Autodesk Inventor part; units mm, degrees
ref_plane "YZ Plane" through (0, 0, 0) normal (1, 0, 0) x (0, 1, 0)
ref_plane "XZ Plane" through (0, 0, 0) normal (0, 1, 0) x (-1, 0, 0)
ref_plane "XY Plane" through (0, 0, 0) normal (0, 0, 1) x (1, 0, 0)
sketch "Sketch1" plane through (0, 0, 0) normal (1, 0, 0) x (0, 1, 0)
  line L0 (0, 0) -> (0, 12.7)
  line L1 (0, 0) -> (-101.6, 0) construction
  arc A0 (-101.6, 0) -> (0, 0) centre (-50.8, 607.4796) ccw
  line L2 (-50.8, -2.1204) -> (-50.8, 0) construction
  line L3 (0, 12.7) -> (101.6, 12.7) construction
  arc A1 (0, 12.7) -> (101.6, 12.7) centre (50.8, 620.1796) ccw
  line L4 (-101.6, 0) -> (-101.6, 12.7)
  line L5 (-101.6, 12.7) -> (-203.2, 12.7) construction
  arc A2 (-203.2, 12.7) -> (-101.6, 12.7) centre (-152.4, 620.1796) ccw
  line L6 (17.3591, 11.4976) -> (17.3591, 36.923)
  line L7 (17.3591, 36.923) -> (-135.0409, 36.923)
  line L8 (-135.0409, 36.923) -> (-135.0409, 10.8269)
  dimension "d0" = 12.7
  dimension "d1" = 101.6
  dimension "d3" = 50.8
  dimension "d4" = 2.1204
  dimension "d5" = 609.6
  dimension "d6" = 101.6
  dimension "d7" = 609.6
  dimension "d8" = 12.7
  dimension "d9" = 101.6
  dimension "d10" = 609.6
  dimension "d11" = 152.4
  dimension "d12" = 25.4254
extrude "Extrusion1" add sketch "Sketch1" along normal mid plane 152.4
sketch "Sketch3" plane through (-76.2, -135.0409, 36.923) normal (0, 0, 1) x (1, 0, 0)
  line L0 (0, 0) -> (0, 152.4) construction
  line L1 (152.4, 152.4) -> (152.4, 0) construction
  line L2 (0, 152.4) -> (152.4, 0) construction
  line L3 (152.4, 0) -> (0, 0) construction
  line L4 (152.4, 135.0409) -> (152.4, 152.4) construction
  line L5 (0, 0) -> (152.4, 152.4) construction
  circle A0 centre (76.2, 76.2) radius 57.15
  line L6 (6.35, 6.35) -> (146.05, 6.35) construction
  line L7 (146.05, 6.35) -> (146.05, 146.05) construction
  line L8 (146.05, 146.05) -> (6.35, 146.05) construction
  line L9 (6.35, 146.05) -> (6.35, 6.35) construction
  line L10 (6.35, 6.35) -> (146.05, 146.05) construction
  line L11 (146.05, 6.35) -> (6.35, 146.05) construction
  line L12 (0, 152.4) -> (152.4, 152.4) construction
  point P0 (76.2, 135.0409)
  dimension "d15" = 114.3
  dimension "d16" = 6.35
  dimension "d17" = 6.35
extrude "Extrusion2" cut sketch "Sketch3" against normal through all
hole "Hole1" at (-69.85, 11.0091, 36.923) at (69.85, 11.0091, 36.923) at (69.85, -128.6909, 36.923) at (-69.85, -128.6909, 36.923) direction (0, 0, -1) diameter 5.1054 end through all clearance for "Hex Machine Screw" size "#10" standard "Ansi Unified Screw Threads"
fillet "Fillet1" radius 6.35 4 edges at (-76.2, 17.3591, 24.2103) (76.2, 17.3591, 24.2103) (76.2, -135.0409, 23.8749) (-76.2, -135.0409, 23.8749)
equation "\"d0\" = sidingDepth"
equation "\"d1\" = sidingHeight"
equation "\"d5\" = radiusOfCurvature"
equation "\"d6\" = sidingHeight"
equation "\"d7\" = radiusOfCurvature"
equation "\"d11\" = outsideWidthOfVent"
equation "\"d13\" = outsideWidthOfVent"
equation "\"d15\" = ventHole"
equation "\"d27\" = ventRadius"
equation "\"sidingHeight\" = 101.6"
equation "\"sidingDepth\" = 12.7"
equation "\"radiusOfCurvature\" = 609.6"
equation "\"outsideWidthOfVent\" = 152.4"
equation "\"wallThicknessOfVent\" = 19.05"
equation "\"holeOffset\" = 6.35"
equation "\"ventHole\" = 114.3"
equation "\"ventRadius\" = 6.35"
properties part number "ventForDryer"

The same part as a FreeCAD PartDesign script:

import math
import FreeCAD as App
import Part
import Sketcher
Q = App.Units.Quantity


def edges_at(feature, points):
    """Names of the edges that pass closest to the given points."""
    edges = feature.Shape.Edges
    near = lambda p: min(range(len(edges)), key=lambda i: edges[i].distToShape(Part.Vertex(*p))[0])
    return sorted({f"Edge{near(p) + 1}" for p in points})

doc = App.newDocument("Part")
body = doc.addObject("PartDesign::Body", "Body")

# Sketch on YZ plane
sketch1 = doc.addObject("Sketcher::SketchObject", "Sketch")
body.addObject(sketch1)
sketch1.AttachmentSupport = (doc.YZ_Plane, [""])
sketch1.MapMode = "FlatFace"
sketch1.addGeometry([
    Part.ArcOfCircle(Part.Circle(App.Vector(-51, 607, 0), App.Vector(0, 0, 1), 610), math.radians(-94.78), math.radians(-85.22)),  # 0
    Part.LineSegment(App.Vector(0, 0, 0), App.Vector(0, 13, 0)),  # 1
    Part.ArcOfCircle(Part.Circle(App.Vector(51, 620, 0), App.Vector(0, 0, 1), 610), math.radians(-94.78), math.radians(-93.14)),  # 2
    Part.LineSegment(App.Vector(17, 11, 0), App.Vector(17, 37, 0)),  # 3
    Part.LineSegment(App.Vector(17, 37, 0), App.Vector(-135, 37, 0)),  # 4
    Part.LineSegment(App.Vector(-135, 37, 0), App.Vector(-135, 11, 0)),  # 5
    Part.ArcOfCircle(Part.Circle(App.Vector(-152, 620, 0), App.Vector(0, 0, 1), 610), math.radians(-88.37), math.radians(-85.22)),  # 6
    Part.LineSegment(App.Vector(-102, 13, 0), App.Vector(-102, 0, 0)),  # 7
], False)
sketch1.addConstraint([
    Sketcher.Constraint("Coincident", 0, 2, 1, 1),
    Sketcher.Constraint("Coincident", 1, 2, 2, 1),
    Sketcher.Constraint("Coincident", 2, 2, 3, 1),
    Sketcher.Constraint("Coincident", 3, 2, 4, 1),
    Sketcher.Constraint("Coincident", 4, 2, 5, 1),
    Sketcher.Constraint("Coincident", 5, 2, 6, 1),
    Sketcher.Constraint("Coincident", 6, 2, 7, 1),
    Sketcher.Constraint("Coincident", 7, 2, 0, 1),
    Sketcher.Constraint("Vertical", 1),
    Sketcher.Constraint("Vertical", 3),
    Sketcher.Constraint("Horizontal", 4),
    Sketcher.Constraint("Vertical", 5),
    Sketcher.Constraint("Vertical", 7),
    Sketcher.Constraint("Equal", 0, 2),
    Sketcher.Constraint("Equal", 2, 6),
    Sketcher.Constraint("PointOnObject", 1, 2, -2),
    Sketcher.Constraint("PointOnObject", 7, 2, -1),
    Sketcher.Constraint("Horizontal", 2, 3, 6, 3),
    Sketcher.Constraint("Horizontal", 1, 2, 6, 2),
    Sketcher.Constraint("Horizontal", 0, 2, 7, 2),
    Sketcher.Constraint("Radius", 0, Q("24 in")),
    Sketcher.Constraint("DistanceX", 4, 2, 4, 1, Q("6 in")),
    Sketcher.Constraint("DistanceY", 1, 1, 1, 2, Q("0.5 in")),
    Sketcher.Constraint("DistanceX", 0, 3, -1, 1, Q("2 in")),
    Sketcher.Constraint("DistanceX", -1, 1, 2, 3, Q("2 in")),
    Sketcher.Constraint("DistanceY", 3, 1, 3, 2, Q("1.001 in")),
    Sketcher.Constraint("DistanceY", 5, 2, 5, 1, Q("1.0274 in")),
])
pad1 = doc.addObject("PartDesign::Pad", "Pad")
body.addObject(pad1)
pad1.Profile = sketch1
pad1.Length = Q("6 in")
pad1.Midplane = True

# Sketch on XY plane
sketch2 = doc.addObject("Sketcher::SketchObject", "Sketch001")
body.addObject(sketch2)
sketch2.AttachmentSupport = (doc.XY_Plane, [""])
sketch2.MapMode = "FlatFace"
sketch2.AttachmentOffset = App.Placement(App.Vector(0, 0, 36.923), App.Rotation())
sketch2.addGeometry(Part.Circle(App.Vector(0, -59, 0), App.Vector(0, 0, 1), 57), False)
sketch2.addConstraint([
    Sketcher.Constraint("PointOnObject", 0, 3, -2),
    Sketcher.Constraint("Diameter", 0, Q("4.5 in")),
    Sketcher.Constraint("DistanceY", 0, 3, -1, 1, 58.841),
])
pocket1 = doc.addObject("PartDesign::Pocket", "Pocket")
body.addObject(pocket1)
pocket1.Profile = sketch2
pocket1.Type = "ThroughAll"

# Sketch on XY plane
sketch3 = doc.addObject("Sketcher::SketchObject", "Sketch002")
body.addObject(sketch3)
sketch3.AttachmentSupport = (doc.XY_Plane, [""])
sketch3.MapMode = "FlatFace"
sketch3.AttachmentOffset = App.Placement(App.Vector(0, 0, 36.923), App.Rotation())
sketch3.addGeometry([
    Part.Circle(App.Vector(-69.8, 11, 0), App.Vector(0, 0, 1), 2.6),
    Part.Circle(App.Vector(69.8, 11, 0), App.Vector(0, 0, 1), 2.6),
    Part.Circle(App.Vector(69.8, -128.7, 0), App.Vector(0, 0, 1), 2.6),
    Part.Circle(App.Vector(-69.8, -128.7, 0), App.Vector(0, 0, 1), 2.6),
], False)
sketch3.addConstraint([
    Sketcher.Constraint("Equal", 0, 1),
    Sketcher.Constraint("Equal", 1, 2),
    Sketcher.Constraint("Equal", 2, 3),
    Sketcher.Constraint("Symmetric", 0, 3, 1, 3, -2),
    Sketcher.Constraint("Symmetric", 2, 3, 3, 3, -2),
    Sketcher.Constraint("Vertical", 1, 3, 2, 3),
    Sketcher.Constraint("Diameter", 0, Q("0.201 in")),
    Sketcher.Constraint("DistanceX", 0, 3, 1, 3, Q("5.5 in")),
    Sketcher.Constraint("DistanceY", 2, 3, 1, 3, Q("5.5 in")),
    Sketcher.Constraint("DistanceY", -1, 1, 0, 3, 11.009),
])
doc.recompute()
hole = doc.addObject("PartDesign::Hole", "Hole")
body.addObject(hole)
hole.Profile = sketch3
hole.ThreadType = "None"
hole.Diameter = Q("0.201 in")
hole.DepthType = "ThroughAll"
doc.recompute()

fillet = doc.addObject("PartDesign::Fillet", "Fillet")
body.addObject(fillet)
fillet.Base = (hole, edges_at(hole, [
    (-76.2, 17.359, 24.21),
    (76.2, 17.359, 24.21),
    (76.2, -135.041, 23.875),
    (-76.2, -135.041, 23.875),
]))
fillet.Radius = Q("0.25 in")

doc.recompute()
